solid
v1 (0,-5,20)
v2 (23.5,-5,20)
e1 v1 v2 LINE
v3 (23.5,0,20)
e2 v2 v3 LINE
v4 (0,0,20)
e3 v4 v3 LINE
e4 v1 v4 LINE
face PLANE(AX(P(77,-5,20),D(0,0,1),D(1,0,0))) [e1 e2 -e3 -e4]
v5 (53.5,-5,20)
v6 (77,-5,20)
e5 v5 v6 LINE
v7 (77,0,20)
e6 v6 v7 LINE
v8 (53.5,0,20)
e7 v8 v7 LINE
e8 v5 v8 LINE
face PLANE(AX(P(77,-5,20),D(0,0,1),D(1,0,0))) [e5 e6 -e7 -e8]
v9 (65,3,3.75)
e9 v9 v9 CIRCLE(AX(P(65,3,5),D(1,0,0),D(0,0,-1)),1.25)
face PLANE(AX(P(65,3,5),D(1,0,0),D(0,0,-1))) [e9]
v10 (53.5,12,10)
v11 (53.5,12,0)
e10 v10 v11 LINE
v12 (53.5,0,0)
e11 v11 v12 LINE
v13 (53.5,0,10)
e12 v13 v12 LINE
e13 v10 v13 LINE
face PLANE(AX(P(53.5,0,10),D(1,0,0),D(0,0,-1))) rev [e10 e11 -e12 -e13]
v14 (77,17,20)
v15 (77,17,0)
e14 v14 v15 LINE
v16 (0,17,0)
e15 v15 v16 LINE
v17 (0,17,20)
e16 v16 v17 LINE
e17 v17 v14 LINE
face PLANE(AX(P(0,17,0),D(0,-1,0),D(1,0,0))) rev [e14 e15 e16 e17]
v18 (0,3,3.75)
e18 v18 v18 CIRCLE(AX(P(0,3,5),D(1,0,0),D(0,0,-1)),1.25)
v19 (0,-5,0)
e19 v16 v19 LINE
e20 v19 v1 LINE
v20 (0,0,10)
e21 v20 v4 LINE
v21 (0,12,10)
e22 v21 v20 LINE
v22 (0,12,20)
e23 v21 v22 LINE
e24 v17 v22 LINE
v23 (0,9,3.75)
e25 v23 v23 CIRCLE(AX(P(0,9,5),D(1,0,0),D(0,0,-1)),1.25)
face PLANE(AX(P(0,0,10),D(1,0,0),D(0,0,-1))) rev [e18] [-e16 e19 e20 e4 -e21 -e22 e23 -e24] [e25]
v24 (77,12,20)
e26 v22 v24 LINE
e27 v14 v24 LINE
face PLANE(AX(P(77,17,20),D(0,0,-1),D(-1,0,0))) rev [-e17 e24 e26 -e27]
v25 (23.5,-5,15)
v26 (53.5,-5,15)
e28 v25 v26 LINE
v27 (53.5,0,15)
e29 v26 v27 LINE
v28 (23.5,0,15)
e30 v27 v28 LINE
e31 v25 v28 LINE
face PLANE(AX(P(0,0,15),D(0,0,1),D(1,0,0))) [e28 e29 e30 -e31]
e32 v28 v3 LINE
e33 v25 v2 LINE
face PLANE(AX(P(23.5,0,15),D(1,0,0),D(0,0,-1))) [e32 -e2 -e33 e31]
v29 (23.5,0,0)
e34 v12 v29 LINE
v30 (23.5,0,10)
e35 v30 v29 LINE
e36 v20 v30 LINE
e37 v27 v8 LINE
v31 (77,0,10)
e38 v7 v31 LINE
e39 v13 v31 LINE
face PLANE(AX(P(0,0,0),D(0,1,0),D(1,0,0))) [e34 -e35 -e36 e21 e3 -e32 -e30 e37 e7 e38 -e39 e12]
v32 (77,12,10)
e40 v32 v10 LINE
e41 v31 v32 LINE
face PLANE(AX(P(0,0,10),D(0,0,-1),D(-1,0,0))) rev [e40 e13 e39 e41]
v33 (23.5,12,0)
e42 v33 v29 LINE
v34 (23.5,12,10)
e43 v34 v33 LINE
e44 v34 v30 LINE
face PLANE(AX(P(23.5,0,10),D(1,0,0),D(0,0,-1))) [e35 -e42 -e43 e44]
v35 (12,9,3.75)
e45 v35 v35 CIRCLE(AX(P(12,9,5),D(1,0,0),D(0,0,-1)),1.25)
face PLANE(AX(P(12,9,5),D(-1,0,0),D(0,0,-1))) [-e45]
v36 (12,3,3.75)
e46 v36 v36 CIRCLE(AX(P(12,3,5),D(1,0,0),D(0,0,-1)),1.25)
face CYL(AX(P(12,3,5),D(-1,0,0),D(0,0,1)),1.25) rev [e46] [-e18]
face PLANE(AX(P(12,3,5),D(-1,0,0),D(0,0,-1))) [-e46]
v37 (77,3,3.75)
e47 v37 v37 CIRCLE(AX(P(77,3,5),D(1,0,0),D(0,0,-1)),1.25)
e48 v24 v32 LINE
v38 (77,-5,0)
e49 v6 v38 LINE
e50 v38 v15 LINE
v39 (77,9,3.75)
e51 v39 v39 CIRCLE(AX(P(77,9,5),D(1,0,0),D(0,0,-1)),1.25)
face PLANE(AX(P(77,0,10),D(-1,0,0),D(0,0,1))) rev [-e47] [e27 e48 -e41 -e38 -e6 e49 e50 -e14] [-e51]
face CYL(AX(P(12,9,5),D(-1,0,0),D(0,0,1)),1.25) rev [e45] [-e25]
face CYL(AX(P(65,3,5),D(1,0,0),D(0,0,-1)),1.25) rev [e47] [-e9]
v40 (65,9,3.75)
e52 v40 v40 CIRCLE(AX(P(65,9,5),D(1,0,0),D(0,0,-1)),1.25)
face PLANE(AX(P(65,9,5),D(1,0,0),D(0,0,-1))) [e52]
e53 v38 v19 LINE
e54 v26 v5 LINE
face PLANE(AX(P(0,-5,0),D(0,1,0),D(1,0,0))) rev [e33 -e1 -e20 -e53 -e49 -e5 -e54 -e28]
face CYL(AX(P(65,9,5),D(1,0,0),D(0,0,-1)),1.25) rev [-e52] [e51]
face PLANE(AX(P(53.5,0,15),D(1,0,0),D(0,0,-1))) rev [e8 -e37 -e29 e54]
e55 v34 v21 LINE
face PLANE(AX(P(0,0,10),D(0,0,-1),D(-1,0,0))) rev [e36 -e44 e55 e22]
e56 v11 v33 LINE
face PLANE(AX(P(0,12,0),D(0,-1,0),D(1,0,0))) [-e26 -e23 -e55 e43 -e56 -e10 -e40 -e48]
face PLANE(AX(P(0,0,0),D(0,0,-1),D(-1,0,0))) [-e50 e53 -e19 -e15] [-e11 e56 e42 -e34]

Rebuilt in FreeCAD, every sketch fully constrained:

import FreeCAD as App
import Part
import Sketcher

V = App.Vector
Q = App.Units.Quantity

doc = App.newDocument("Part")
body = doc.addObject("PartDesign::Body", "Body")

# Sketch on XY plane
sketch1 = doc.addObject("Sketcher::SketchObject", "Sketch")
body.addObject(sketch1)
sketch1.AttachmentSupport = (doc.XY_Plane, [""])
sketch1.MapMode = "FlatFace"
sketch1.addGeometry(Part.LineSegment(V(0, 12, 0), V(0, 0, 0)), False)
sketch1.addGeometry(Part.LineSegment(V(0, 0, 0), V(77, 0, 0)), False)
sketch1.addGeometry(Part.LineSegment(V(77, 0, 0), V(77, 12, 0)), False)
sketch1.addGeometry(Part.LineSegment(V(77, 12, 0), V(0, 12, 0)), False)
sketch1.addConstraint(Sketcher.Constraint("Coincident", 0, 2, 1, 1))
sketch1.addConstraint(Sketcher.Constraint("Coincident", 1, 2, 2, 1))
sketch1.addConstraint(Sketcher.Constraint("Coincident", 2, 2, 3, 1))
sketch1.addConstraint(Sketcher.Constraint("Coincident", 3, 2, 0, 1))
sketch1.addConstraint(Sketcher.Constraint("Vertical", 0))
sketch1.addConstraint(Sketcher.Constraint("Horizontal", 1))
sketch1.addConstraint(Sketcher.Constraint("Vertical", 2))
sketch1.addConstraint(Sketcher.Constraint("Horizontal", 3))
sketch1.addConstraint(Sketcher.Constraint("Coincident", 0, 2, -1, 1))
sketch1.addConstraint(Sketcher.Constraint("DistanceX", 1, 1, 1, 2, Q("77 mm")))
sketch1.addConstraint(Sketcher.Constraint("DistanceY", 0, 2, 0, 1, Q("12 mm")))
pad1 = doc.addObject("PartDesign::Pad", "Pad")
body.addObject(pad1)
pad1.Profile = sketch1
pad1.Length = 10

# Sketch on YZ plane
sketch2 = doc.addObject("Sketcher::SketchObject", "Sketch001")
body.addObject(sketch2)
sketch2.AttachmentSupport = (doc.YZ_Plane, [""])
sketch2.MapMode = "FlatFace"
sketch2.AttachmentOffset = App.Placement(V(0, 0, 77), App.Rotation())
sketch2.addGeometry(Part.Circle(V(3, 5, 0), V(0, 0, 1), 1.2), False)
sketch2.addGeometry(Part.Circle(V(9, 5, 0), V(0, 0, 1), 1.2), False)
sketch2.addConstraint(Sketcher.Constraint("Equal", 0, 1))
sketch2.addConstraint(Sketcher.Constraint("Horizontal", 0, 3, 1, 3))
sketch2.addConstraint(Sketcher.Constraint("Diameter", 0, Q("2.5 mm")))
sketch2.addConstraint(Sketcher.Constraint("DistanceX", -1, 1, 0, 3, Q("3 mm")))
sketch2.addConstraint(Sketcher.Constraint("DistanceY", -1, 1, 0, 3, Q("5 mm")))
sketch2.addConstraint(Sketcher.Constraint("DistanceX", -1, 1, 1, 3, Q("9 mm")))
pocket1 = doc.addObject("PartDesign::Pocket", "Pocket")
body.addObject(pocket1)
pocket1.Profile = sketch2
pocket1.Length = 12
doc.recompute()

datumplane = doc.addObject("PartDesign::Plane", "DatumPlane")
body.addObject(datumplane)
datumplane.AttachmentSupport = (doc.YZ_Plane, [""])
datumplane.MapMode = "FlatFace"
datumplane.AttachmentOffset = App.Placement(V(0, 0, 38.5), App.Rotation())
mirrored = doc.addObject("PartDesign::Mirrored", "Mirrored")
body.addObject(mirrored)
mirrored.Originals = [pocket1]
mirrored.MirrorPlane = (datumplane, [""])
body.Tip = mirrored

# Sketch on XZ plane
sketch3 = doc.addObject("Sketcher::SketchObject", "Sketch002")
body.addObject(sketch3)
sketch3.AttachmentSupport = (doc.XZ_Plane, [""])
sketch3.MapMode = "FlatFace"
sketch3.AttachmentOffset = App.Placement(V(0, 0, -12), App.Rotation())
sketch3.addGeometry(Part.LineSegment(V(0, 0, 0), V(0, 20, 0)), False)
sketch3.addGeometry(Part.LineSegment(V(0, 20, 0), V(77, 20, 0)), False)
sketch3.addGeometry(Part.LineSegment(V(77, 20, 0), V(77, 0, 0)), False)
sketch3.addGeometry(Part.LineSegment(V(77, 0, 0), V(0, 0, 0)), False)
sketch3.addConstraint(Sketcher.Constraint("Coincident", 0, 2, 1, 1))
sketch3.addConstraint(Sketcher.Constraint("Coincident", 1, 2, 2, 1))
sketch3.addConstraint(Sketcher.Constraint("Coincident", 2, 2, 3, 1))
sketch3.addConstraint(Sketcher.Constraint("Coincident", 3, 2, 0, 1))
sketch3.addConstraint(Sketcher.Constraint("Vertical", 0))
sketch3.addConstraint(Sketcher.Constraint("Horizontal", 1))
sketch3.addConstraint(Sketcher.Constraint("Vertical", 2))
sketch3.addConstraint(Sketcher.Constraint("Horizontal", 3))
sketch3.addConstraint(Sketcher.Constraint("Coincident", 3, 2, -1, 1))
sketch3.addConstraint(Sketcher.Constraint("DistanceX", 1, 1, 1, 2, Q("77 mm")))
sketch3.addConstraint(Sketcher.Constraint("DistanceY", 0, 1, 0, 2, Q("20 mm")))
pad2 = doc.addObject("PartDesign::Pad", "Pad001")
body.addObject(pad2)
pad2.Profile = sketch3
pad2.Length = 5
pad2.Reversed = True
doc.recompute()

datumplane2 = doc.addObject("PartDesign::Plane", "DatumPlane001")
body.addObject(datumplane2)
datumplane2.AttachmentSupport = (doc.XZ_Plane, [""])
datumplane2.MapMode = "FlatFace"
datumplane2.AttachmentOffset = App.Placement(V(0, 0, -6), App.Rotation())
mirrored2 = doc.addObject("PartDesign::Mirrored", "Mirrored001")
body.addObject(mirrored2)
mirrored2.Originals = [pad2]
mirrored2.MirrorPlane = (datumplane2, [""])
body.Tip = mirrored2

# Sketch on XY plane
sketch4 = doc.addObject("Sketcher::SketchObject", "Sketch003")
body.addObject(sketch4)
sketch4.AttachmentSupport = (doc.XY_Plane, [""])
sketch4.MapMode = "FlatFace"
sketch4.addGeometry(Part.LineSegment(V(54, 12, 0), V(54, 0, 0)), False)
sketch4.addGeometry(Part.LineSegment(V(54, 0, 0), V(24, 0, 0)), False)
sketch4.addGeometry(Part.LineSegment(V(24, 0, 0), V(24, 12, 0)), False)
sketch4.addGeometry(Part.LineSegment(V(24, 12, 0), V(54, 12, 0)), False)
sketch4.addConstraint(Sketcher.Constraint("Coincident", 0, 2, 1, 1))
sketch4.addConstraint(Sketcher.Constraint("Coincident", 1, 2, 2, 1))
sketch4.addConstraint(Sketcher.Constraint("Coincident", 2, 2, 3, 1))
sketch4.addConstraint(Sketcher.Constraint("Coincident", 3, 2, 0, 1))
sketch4.addConstraint(Sketcher.Constraint("Vertical", 0))
sketch4.addConstraint(Sketcher.Constraint("Horizontal", 1))
sketch4.addConstraint(Sketcher.Constraint("Vertical", 2))
sketch4.addConstraint(Sketcher.Constraint("Horizontal", 3))
sketch4.addConstraint(Sketcher.Constraint("PointOnObject", 0, 2, -1))
sketch4.addConstraint(Sketcher.Constraint("DistanceX", 1, 2, 1, 1, Q("30 mm")))
sketch4.addConstraint(Sketcher.Constraint("DistanceY", 0, 2, 0, 1, Q("12 mm")))
sketch4.addConstraint(Sketcher.Constraint("DistanceX", -1, 1, 0, 2, Q("53.5 mm")))
pocket2 = doc.addObject("PartDesign::Pocket", "Pocket001")
body.addObject(pocket2)
pocket2.Profile = sketch4
pocket2.Length = 10
pocket2.Reversed = True

# Sketch on XY plane
sketch5 = doc.addObject("Sketcher::SketchObject", "Sketch004")
body.addObject(sketch5)
sketch5.AttachmentSupport = (doc.XY_Plane, [""])
sketch5.MapMode = "FlatFace"
sketch5.AttachmentOffset = App.Placement(V(0, 0, 20), App.Rotation())
sketch5.addGeometry(Part.LineSegment(V(24, 0, 0), V(24, -5, 0)), False)
sketch5.addGeometry(Part.LineSegment(V(24, -5, 0), V(54, -5, 0)), False)
sketch5.addGeometry(Part.LineSegment(V(54, -5, 0), V(54, 0, 0)), False)
sketch5.addGeometry(Part.LineSegment(V(54, 0, 0), V(24, 0, 0)), False)
sketch5.addConstraint(Sketcher.Constraint("Coincident", 0, 2, 1, 1))
sketch5.addConstraint(Sketcher.Constraint("Coincident", 1, 2, 2, 1))
sketch5.addConstraint(Sketcher.Constraint("Coincident", 2, 2, 3, 1))
sketch5.addConstraint(Sketcher.Constraint("Coincident", 3, 2, 0, 1))
sketch5.addConstraint(Sketcher.Constraint("Vertical", 0))
sketch5.addConstraint(Sketcher.Constraint("Horizontal", 1))
sketch5.addConstraint(Sketcher.Constraint("Vertical", 2))
sketch5.addConstraint(Sketcher.Constraint("Horizontal", 3))
sketch5.addConstraint(Sketcher.Constraint("PointOnObject", 2, 2, -1))
sketch5.addConstraint(Sketcher.Constraint("DistanceX", 1, 1, 1, 2, Q("30 mm")))
sketch5.addConstraint(Sketcher.Constraint("DistanceY", 0, 2, 0, 1, Q("5 mm")))
sketch5.addConstraint(Sketcher.Constraint("DistanceX", -1, 1, 0, 2, Q("23.5 mm")))
pocket3 = doc.addObject("PartDesign::Pocket", "Pocket002")
body.addObject(pocket3)
pocket3.Profile = sketch5
pocket3.Length = 5

doc.recompute()
